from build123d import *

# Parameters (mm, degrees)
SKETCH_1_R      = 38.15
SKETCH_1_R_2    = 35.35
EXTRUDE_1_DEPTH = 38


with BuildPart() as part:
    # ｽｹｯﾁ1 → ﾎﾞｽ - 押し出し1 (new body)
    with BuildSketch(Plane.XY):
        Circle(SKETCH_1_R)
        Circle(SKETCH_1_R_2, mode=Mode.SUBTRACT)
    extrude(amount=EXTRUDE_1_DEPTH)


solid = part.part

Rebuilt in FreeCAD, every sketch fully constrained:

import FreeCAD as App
import Part
import Sketcher
from FreeCAD import Vector
Q = App.Units.Quantity

doc = App.newDocument("Part")
params = doc.addObject("Spreadsheet::Sheet", "Params")
for row, (alias, value) in enumerate([
    ("sketch1_diameter", "76.3 mm"),
    ("sketch1_diameter2", "70.7 mm"),
    ("pad1_length", "38 mm"),
], start=1):
    params.set(f"A{row}", alias)
    params.set(f"B{row}", "=" + value)
    params.setAlias(f"B{row}", alias)

body = doc.addObject("PartDesign::Body", "Body")

# Sketch on XY plane
sketch1 = doc.addObject("Sketcher::SketchObject", "Sketch")
body.addObject(sketch1)
sketch1.AttachmentSupport = (doc.XY_Plane, [""])
sketch1.MapMode = "FlatFace"
sketch1.addGeometry(Part.Circle(Vector(0, 0, 0), Vector(0, 0, 1), 38.15), False)
sketch1.addGeometry(Part.Circle(Vector(0, 0, 0), Vector(0, 0, 1), 35.35), False)
sketch1.addConstraint(Sketcher.Constraint("Coincident", 0, 3, -1, 1))
sketch1.addConstraint(Sketcher.Constraint("Coincident", 1, 3, -1, 1))
sketch1.addConstraint(Sketcher.Constraint("Diameter", 0, Q("76.3 mm")))
sketch1.addConstraint(Sketcher.Constraint("Diameter", 1, Q("70.7 mm")))
sketch1.setExpression("Constraints[2]", "Params.sketch1_diameter")
sketch1.setExpression("Constraints[3]", "Params.sketch1_diameter2")
pad1 = doc.addObject("PartDesign::Pad", "Pad")
body.addObject(pad1)
pad1.Profile = sketch1
pad1.setExpression("Length", "Params.pad1_length")

doc.recompute()
